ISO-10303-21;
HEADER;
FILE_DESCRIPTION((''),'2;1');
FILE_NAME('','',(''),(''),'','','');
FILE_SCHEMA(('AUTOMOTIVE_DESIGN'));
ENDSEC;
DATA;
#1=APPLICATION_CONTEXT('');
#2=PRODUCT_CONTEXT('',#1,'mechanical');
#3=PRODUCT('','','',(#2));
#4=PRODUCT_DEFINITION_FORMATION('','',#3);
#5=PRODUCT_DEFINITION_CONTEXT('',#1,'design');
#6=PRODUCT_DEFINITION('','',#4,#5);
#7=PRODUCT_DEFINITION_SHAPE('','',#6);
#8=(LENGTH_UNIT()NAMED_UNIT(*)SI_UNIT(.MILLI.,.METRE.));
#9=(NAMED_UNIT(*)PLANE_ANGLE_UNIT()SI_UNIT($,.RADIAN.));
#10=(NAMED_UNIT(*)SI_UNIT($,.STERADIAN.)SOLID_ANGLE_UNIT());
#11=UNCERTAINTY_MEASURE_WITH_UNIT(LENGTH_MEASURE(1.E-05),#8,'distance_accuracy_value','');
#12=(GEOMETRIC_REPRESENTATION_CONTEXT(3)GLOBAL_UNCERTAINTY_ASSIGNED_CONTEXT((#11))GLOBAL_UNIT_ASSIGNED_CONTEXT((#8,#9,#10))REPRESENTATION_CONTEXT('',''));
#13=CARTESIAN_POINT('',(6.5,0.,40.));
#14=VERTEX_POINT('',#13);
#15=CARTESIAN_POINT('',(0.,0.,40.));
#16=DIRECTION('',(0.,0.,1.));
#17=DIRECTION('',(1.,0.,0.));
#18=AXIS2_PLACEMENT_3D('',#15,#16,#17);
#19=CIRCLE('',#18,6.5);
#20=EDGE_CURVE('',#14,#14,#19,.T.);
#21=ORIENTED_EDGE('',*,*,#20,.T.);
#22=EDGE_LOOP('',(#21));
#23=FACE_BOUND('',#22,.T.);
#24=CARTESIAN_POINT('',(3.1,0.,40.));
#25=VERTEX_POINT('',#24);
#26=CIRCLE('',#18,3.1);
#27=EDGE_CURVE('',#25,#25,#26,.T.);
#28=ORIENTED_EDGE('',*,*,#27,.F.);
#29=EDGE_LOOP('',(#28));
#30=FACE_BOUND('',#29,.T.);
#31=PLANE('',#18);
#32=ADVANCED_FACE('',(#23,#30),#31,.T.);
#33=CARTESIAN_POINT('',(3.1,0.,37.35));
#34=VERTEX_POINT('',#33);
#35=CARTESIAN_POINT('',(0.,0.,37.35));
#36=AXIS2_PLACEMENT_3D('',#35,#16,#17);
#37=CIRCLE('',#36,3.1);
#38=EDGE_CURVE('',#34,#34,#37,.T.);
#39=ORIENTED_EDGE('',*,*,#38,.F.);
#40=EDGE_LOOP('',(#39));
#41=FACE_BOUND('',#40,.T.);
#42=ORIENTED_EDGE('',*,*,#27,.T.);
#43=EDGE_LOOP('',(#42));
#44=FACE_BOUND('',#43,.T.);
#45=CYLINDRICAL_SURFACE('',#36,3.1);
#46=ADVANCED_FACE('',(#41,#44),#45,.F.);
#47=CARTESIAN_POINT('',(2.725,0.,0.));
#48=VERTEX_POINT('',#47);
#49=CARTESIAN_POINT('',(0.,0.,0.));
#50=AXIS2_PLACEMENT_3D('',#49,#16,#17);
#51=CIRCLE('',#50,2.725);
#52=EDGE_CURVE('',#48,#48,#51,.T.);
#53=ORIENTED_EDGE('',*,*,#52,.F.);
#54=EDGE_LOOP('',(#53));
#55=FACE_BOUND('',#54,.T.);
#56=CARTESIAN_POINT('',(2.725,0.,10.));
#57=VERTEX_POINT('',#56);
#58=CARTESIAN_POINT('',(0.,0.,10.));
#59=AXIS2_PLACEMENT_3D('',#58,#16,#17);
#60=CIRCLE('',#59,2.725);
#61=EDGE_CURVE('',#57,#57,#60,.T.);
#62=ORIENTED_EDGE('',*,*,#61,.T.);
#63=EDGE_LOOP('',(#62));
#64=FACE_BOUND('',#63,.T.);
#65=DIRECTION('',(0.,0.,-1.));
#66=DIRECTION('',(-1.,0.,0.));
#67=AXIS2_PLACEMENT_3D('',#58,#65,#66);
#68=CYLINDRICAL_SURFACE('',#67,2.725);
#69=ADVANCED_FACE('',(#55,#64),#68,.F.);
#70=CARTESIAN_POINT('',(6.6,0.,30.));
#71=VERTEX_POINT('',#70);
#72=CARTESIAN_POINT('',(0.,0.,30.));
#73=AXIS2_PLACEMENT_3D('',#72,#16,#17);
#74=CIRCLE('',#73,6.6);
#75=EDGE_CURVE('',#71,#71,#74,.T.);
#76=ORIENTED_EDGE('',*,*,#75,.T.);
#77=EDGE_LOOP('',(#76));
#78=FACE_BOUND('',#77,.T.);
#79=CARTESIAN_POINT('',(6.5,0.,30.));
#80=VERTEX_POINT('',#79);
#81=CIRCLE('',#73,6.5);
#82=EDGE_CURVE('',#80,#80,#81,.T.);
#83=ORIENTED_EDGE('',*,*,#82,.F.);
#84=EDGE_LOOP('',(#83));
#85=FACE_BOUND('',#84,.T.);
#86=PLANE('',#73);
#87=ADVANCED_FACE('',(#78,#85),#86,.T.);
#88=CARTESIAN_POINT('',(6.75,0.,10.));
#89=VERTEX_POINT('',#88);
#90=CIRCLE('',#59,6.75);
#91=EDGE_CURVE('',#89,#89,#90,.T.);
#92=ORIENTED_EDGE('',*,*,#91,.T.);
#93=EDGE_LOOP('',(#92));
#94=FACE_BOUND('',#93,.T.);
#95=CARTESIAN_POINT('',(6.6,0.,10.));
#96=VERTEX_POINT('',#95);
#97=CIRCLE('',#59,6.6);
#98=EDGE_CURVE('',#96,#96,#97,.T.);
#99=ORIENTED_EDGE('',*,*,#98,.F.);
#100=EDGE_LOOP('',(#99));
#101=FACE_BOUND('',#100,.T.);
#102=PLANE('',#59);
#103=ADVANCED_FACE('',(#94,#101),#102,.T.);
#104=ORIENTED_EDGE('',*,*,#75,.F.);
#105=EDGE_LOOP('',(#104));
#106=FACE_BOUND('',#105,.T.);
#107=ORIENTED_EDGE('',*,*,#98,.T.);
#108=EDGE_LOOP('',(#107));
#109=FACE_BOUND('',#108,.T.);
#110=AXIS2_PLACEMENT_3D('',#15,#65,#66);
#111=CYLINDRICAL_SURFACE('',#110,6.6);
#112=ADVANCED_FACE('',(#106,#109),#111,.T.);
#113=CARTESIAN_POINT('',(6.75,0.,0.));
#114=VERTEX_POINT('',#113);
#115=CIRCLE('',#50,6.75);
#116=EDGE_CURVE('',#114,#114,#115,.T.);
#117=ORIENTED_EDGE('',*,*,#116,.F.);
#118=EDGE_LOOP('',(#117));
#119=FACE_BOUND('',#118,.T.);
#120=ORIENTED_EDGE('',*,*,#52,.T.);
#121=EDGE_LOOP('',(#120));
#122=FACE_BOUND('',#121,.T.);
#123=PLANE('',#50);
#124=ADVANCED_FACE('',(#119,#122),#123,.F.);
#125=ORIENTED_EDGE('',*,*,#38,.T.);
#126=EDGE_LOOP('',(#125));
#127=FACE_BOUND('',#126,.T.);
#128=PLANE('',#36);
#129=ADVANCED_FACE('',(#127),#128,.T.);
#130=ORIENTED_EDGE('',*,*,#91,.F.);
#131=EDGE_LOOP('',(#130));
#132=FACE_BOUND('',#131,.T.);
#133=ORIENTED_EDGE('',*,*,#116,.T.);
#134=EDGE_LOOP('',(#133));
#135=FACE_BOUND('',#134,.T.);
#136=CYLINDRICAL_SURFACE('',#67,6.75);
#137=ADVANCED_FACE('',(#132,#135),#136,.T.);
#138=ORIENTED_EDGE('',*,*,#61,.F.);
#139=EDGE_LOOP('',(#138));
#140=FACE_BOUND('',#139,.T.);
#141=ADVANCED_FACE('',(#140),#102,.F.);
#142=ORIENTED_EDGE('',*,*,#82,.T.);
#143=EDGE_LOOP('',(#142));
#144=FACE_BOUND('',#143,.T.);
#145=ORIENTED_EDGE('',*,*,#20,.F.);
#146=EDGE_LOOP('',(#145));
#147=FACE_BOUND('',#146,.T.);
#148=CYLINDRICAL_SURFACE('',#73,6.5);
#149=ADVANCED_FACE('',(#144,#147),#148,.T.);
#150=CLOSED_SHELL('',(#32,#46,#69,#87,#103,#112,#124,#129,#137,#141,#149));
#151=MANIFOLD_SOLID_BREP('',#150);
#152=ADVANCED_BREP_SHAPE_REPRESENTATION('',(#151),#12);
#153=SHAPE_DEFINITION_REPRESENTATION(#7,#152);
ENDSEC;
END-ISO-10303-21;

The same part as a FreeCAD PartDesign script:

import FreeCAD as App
import Part
import Sketcher

V = App.Vector
Q = App.Units.Quantity

doc = App.newDocument("Part")
body = doc.addObject("PartDesign::Body", "Body")

sketch1 = doc.addObject("Sketcher::SketchObject", "Sketch")
body.addObject(sketch1)
sketch1.AttachmentSupport = (doc.XY_Plane, [""])
sketch1.MapMode = "FlatFace"
sketch1.addGeometry([
    Part.Circle(V(0, 0, 0), V(0, 0, 1), 6.75),
    Part.Circle(V(0, 0, 0), V(0, 0, 1), 2.725),
], False)
sketch1.addConstraint([
    Sketcher.Constraint("Coincident", 0, 3, -1, 1),
    Sketcher.Constraint("Coincident", 1, 3, -1, 1),
    Sketcher.Constraint("Diameter", 0, Q("13.5 mm")),
    Sketcher.Constraint("Diameter", 1, Q("5.45 mm")),
])
pad1 = doc.addObject("PartDesign::Pad", "Pad")
body.addObject(pad1)
pad1.Profile = sketch1
pad1.Length = 10

sketch2 = doc.addObject("Sketcher::SketchObject", "Sketch001")
body.addObject(sketch2)
sketch2.AttachmentSupport = (doc.XY_Plane, [""])
sketch2.MapMode = "FlatFace"
sketch2.AttachmentOffset = App.Placement(V(0, 0, 10), App.Rotation())
sketch2.addGeometry(Part.Circle(V(0, 0, 0), V(0, 0, 1), 6.6), False)
sketch2.addConstraint([
    Sketcher.Constraint("Coincident", 0, 3, -1, 1),
    Sketcher.Constraint("Diameter", 0, Q("13.2 mm")),
])
pad2 = doc.addObject("PartDesign::Pad", "Pad001")
body.addObject(pad2)
pad2.Profile = sketch2
pad2.Length = 30

sketch3 = doc.addObject("Sketcher::SketchObject", "Sketch002")
body.addObject(sketch3)
sketch3.AttachmentSupport = (doc.XY_Plane, [""])
sketch3.MapMode = "FlatFace"
sketch3.AttachmentOffset = App.Placement(V(0, 0, 30), App.Rotation())
sketch3.addGeometry([
    Part.Circle(V(0, 0, 0), V(0, 0, 1), 6.6),
    Part.Circle(V(0, 0, 0), V(0, 0, 1), 6.5),
], False)
sketch3.addConstraint([
    Sketcher.Constraint("Coincident", 0, 3, -1, 1),
    Sketcher.Constraint("Coincident", 1, 3, -1, 1),
    Sketcher.Constraint("Diameter", 1, Q("13 mm")),
    Sketcher.Constraint("Diameter", 0, Q("13.2 mm")),
])
pocket1 = doc.addObject("PartDesign::Pocket", "Pocket")
body.addObject(pocket1)
pocket1.Profile = sketch3
pocket1.Length = 10
pocket1.Reversed = True

sketch4 = doc.addObject("Sketcher::SketchObject", "Sketch003")
body.addObject(sketch4)
sketch4.AttachmentSupport = (doc.XY_Plane, [""])
sketch4.MapMode = "FlatFace"
sketch4.AttachmentOffset = App.Placement(V(0, 0, 40), App.Rotation())
sketch4.addGeometry(Part.Circle(V(0, 0, 0), V(0, 0, 1), 3.1), False)
sketch4.addConstraint([
    Sketcher.Constraint("Coincident", 0, 3, -1, 1),
    Sketcher.Constraint("Diameter", 0, Q("6.2 mm")),
])
pocket2 = doc.addObject("PartDesign::Pocket", "Pocket001")
body.addObject(pocket2)
pocket2.Profile = sketch4
pocket2.Length = 2.65

doc.recompute()
